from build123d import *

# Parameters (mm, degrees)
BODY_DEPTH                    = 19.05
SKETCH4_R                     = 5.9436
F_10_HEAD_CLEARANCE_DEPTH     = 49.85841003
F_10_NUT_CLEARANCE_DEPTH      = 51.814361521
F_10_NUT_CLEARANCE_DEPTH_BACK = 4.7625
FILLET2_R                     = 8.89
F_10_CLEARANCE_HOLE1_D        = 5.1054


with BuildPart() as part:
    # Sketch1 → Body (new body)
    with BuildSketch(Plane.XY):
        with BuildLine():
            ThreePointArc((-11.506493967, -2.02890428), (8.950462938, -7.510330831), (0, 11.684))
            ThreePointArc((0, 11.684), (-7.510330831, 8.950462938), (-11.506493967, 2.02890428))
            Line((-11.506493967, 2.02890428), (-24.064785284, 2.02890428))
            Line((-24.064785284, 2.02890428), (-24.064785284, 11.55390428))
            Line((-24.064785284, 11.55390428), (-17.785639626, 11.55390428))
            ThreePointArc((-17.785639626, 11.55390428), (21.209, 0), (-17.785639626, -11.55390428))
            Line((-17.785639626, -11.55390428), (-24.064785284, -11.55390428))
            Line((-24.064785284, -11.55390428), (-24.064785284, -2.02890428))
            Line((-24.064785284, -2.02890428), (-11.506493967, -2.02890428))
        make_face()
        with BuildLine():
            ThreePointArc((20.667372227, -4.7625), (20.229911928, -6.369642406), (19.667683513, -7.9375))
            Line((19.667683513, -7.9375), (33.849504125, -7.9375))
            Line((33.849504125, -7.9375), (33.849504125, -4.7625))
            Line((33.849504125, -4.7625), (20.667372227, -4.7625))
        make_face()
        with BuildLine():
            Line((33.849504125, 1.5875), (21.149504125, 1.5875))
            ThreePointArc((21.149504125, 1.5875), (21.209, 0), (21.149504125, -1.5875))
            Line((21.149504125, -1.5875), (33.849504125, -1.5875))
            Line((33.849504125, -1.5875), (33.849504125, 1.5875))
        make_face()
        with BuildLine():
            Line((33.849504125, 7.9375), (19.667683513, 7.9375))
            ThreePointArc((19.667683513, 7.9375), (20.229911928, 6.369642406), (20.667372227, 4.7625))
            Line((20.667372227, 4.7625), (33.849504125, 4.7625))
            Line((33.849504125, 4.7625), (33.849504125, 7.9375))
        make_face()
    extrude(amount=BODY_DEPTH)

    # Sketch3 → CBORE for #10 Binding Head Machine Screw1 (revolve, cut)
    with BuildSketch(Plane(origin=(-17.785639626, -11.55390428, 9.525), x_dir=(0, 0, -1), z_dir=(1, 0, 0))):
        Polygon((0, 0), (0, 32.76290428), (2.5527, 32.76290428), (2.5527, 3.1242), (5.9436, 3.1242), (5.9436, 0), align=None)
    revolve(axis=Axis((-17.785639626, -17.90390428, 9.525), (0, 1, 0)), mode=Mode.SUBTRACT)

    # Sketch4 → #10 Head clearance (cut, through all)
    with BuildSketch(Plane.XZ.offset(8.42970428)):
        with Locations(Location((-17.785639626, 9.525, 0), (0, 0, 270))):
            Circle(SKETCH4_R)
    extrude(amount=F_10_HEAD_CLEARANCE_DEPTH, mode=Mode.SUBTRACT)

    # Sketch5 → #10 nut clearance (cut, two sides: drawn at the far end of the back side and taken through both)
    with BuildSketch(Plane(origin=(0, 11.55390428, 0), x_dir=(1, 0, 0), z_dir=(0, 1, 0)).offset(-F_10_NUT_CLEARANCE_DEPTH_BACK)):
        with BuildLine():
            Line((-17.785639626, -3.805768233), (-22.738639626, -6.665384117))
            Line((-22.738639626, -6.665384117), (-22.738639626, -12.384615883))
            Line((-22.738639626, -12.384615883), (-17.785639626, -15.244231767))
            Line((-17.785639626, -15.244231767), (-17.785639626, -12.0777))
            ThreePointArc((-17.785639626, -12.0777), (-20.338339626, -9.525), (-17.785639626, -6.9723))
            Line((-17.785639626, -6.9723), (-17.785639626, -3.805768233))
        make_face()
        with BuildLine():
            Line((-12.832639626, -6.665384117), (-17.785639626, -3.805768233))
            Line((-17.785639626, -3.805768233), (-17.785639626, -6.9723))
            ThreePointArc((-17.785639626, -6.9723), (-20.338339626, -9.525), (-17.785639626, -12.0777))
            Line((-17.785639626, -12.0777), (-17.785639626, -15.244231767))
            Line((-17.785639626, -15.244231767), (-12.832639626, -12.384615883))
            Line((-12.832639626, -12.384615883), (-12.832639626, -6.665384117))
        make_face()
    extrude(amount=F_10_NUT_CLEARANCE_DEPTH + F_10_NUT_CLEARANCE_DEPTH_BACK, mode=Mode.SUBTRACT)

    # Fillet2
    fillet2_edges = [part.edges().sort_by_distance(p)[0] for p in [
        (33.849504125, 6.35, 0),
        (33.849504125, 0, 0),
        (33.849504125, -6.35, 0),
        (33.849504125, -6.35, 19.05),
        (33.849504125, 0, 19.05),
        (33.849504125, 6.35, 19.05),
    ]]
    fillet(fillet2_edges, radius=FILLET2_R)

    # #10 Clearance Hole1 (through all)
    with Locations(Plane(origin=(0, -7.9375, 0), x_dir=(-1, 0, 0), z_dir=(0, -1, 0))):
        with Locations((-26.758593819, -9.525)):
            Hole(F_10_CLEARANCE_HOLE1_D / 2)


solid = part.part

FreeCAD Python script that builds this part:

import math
import FreeCAD as App
import Part
import Sketcher
from FreeCAD import Vector
Q = App.Units.Quantity


def edges_at(feature, points):
    """Names of the edges that pass closest to the given points."""
    edges = feature.Shape.Edges
    near = lambda p: min(range(len(edges)), key=lambda i: edges[i].distToShape(Part.Vertex(*p))[0])
    return sorted({f"Edge{near(p) + 1}" for p in points})


def add_polygon(sketch, points):
    """Adds a closed chain of lines whose ends are joined by coincident constraints."""
    first, n = sketch.GeometryCount, len(points)
    for a, b in zip(points, points[1:] + points[:1]):
        sketch.addGeometry(Part.LineSegment(App.Vector(*a, 0), App.Vector(*b, 0)), False)
    for i in range(n):
        sketch.addConstraint(Sketcher.Constraint("Coincident", first + i, 2, first + (i + 1) % n, 1))

doc = App.newDocument("Part")
params = doc.addObject("Spreadsheet::Sheet", "Params")
for row, (alias, value) in enumerate([
    ("sketch1_radius", "0.46 in"),
    ("sketch1_width", "0.5 in"),
    ("sketch1_radius2", "0.835 in"),
    ("sketch1_height", "0.375 in"),
    ("sketch1_height2", "0.125 in"),
    ("pad1_length", "0.75 in"),
    ("sketch2_width", "0.123 in"),
    ("sketch2_height", "0.234 in"),
    ("groove_angle", "360 deg"),
    ("sketch3_diameter", "0.468 in"),
    ("pocket2_length", "51.814362 mm"),
    ("pocket2_length2", "0.1875 in"),
    ("fillet_radius", "0.35 in"),
    ("sketch5_diameter", "0.201 in"),
    ("hole_diameter", "0.201 in"),
], start=1):
    params.set(f"A{row}", alias)
    params.set(f"B{row}", "=" + value)
    params.setAlias(f"B{row}", alias)

body = doc.addObject("PartDesign::Body", "Body")

# Sketch on XY plane
sketch1 = doc.addObject("Sketcher::SketchObject", "Sketch")
body.addObject(sketch1)
sketch1.AttachmentSupport = (doc.XY_Plane, [""])
sketch1.MapMode = "FlatFace"
sketch1.addGeometry([
    Part.ArcOfCircle(Part.Circle(Vector(0, 0, 0), Vector(0, 0, 1), 11.684), math.radians(-170.000005), math.radians(170.000005)),  # 0
    Part.LineSegment(Vector(-11.506494, -2.028904, 0), Vector(-24.064785, -2.028904, 0)),  # 1
    Part.LineSegment(Vector(-24.064785, -2.028904, 0), Vector(-24.064785, -11.553904, 0)),  # 2
    Part.LineSegment(Vector(-24.064785, -11.553904, 0), Vector(-17.78564, -11.553904, 0)),  # 3
    Part.ArcOfCircle(Part.Circle(Vector(0, 0, 0), Vector(0, 0, 1), 21.209), math.radians(-146.991447), math.radians(-21.978058)),  # 4
    Part.LineSegment(Vector(19.667684, -7.9375, 0), Vector(33.849504, -7.9375, 0)),  # 5
    Part.LineSegment(Vector(33.849504, -7.9375, 0), Vector(33.849504, -4.7625, 0)),  # 6
    Part.LineSegment(Vector(33.849504, -4.7625, 0), Vector(20.667372, -4.7625, 0)),  # 7
    Part.ArcOfCircle(Part.Circle(Vector(0, 0, 0), Vector(0, 0, 1), 21.209), math.radians(-12.976471), math.radians(-4.292621)),  # 8
    Part.LineSegment(Vector(21.149504, -1.5875, 0), Vector(33.849504, -1.5875, 0)),  # 9
    Part.LineSegment(Vector(33.849504, -1.5875, 0), Vector(33.849504, 1.5875, 0)),  # 10
    Part.LineSegment(Vector(33.849504, 1.5875, 0), Vector(21.149504, 1.5875, 0)),  # 11
    Part.ArcOfCircle(Part.Circle(Vector(0, 0, 0), Vector(0, 0, 1), 21.209), math.radians(4.292621), math.radians(12.976471)),  # 12
    Part.LineSegment(Vector(20.667372, 4.7625, 0), Vector(33.849504, 4.7625, 0)),  # 13
    Part.LineSegment(Vector(33.849504, 4.7625, 0), Vector(33.849504, 7.9375, 0)),  # 14
    Part.LineSegment(Vector(33.849504, 7.9375, 0), Vector(19.667684, 7.9375, 0)),  # 15
    Part.ArcOfCircle(Part.Circle(Vector(0, 0, 0), Vector(0, 0, 1), 21.209), math.radians(21.978058), math.radians(146.991447)),  # 16
    Part.LineSegment(Vector(-17.78564, 11.553904, 0), Vector(-24.064785, 11.553904, 0)),  # 17
    Part.LineSegment(Vector(-24.064785, 11.553904, 0), Vector(-24.064785, 2.028904, 0)),  # 18
    Part.LineSegment(Vector(-24.064785, 2.028904, 0), Vector(-11.506494, 2.028904, 0)),  # 19
], False)
sketch1.addConstraint([
    Sketcher.Constraint("Coincident", 0, 1, 1, 1),
    Sketcher.Constraint("Coincident", 1, 2, 2, 1),
    Sketcher.Constraint("Coincident", 2, 2, 3, 1),
    Sketcher.Constraint("Coincident", 3, 2, 4, 1),
    Sketcher.Constraint("Coincident", 4, 2, 5, 1),
    Sketcher.Constraint("Coincident", 5, 2, 6, 1),
    Sketcher.Constraint("Coincident", 6, 2, 7, 1),
    Sketcher.Constraint("Coincident", 7, 2, 8, 1),
    Sketcher.Constraint("Coincident", 8, 2, 9, 1),
    Sketcher.Constraint("Coincident", 9, 2, 10, 1),
    Sketcher.Constraint("Coincident", 10, 2, 11, 1),
    Sketcher.Constraint("Coincident", 11, 2, 12, 1),
    Sketcher.Constraint("Coincident", 12, 2, 13, 1),
    Sketcher.Constraint("Coincident", 13, 2, 14, 1),
    Sketcher.Constraint("Coincident", 14, 2, 15, 1),
    Sketcher.Constraint("Coincident", 15, 2, 16, 1),
    Sketcher.Constraint("Coincident", 16, 2, 17, 1),
    Sketcher.Constraint("Coincident", 17, 2, 18, 1),
    Sketcher.Constraint("Coincident", 18, 2, 19, 1),
    Sketcher.Constraint("Coincident", 19, 2, 0, 2),
    Sketcher.Constraint("Horizontal", 1),
    Sketcher.Constraint("Vertical", 2),
    Sketcher.Constraint("Horizontal", 3),
    Sketcher.Constraint("Horizontal", 5),
    Sketcher.Constraint("Vertical", 6),
    Sketcher.Constraint("Horizontal", 7),
    Sketcher.Constraint("Horizontal", 9),
    Sketcher.Constraint("Vertical", 10),
    Sketcher.Constraint("Horizontal", 11),
    Sketcher.Constraint("Horizontal", 13),
    Sketcher.Constraint("Vertical", 14),
    Sketcher.Constraint("Horizontal", 15),
    Sketcher.Constraint("Horizontal", 17),
    Sketcher.Constraint("Vertical", 18),
    Sketcher.Constraint("Horizontal", 19),
    Sketcher.Constraint("Coincident", 0, 3, -1, 1),
    Sketcher.Constraint("Coincident", 4, 3, -1, 1),
    Sketcher.Constraint("Coincident", 8, 3, -1, 1),
    Sketcher.Constraint("Coincident", 12, 3, -1, 1),
    Sketcher.Constraint("Coincident", 16, 3, -1, 1),
    Sketcher.Constraint("Equal", 4, 8),
    Sketcher.Constraint("Equal", 8, 12),
    Sketcher.Constraint("Equal", 12, 16),
    Sketcher.Constraint("Symmetric", 6, 2, 13, 2, -1),
    Sketcher.Constraint("Symmetric", 2, 2, 17, 2, -1),
    Sketcher.Constraint("Vertical", 6, 2, 9, 2),
    Sketcher.Constraint("Vertical", 8, 2, 11, 2),
    Sketcher.Constraint("Vertical", 4, 2, 15, 2),
    Sketcher.Constraint("Vertical", 0, 1, 19, 2),
    Sketcher.Constraint("Equal", 6, 10),
    Sketcher.Constraint("Radius", 0, Q("0.46 in")),
    Sketcher.Constraint("DistanceX", 9, 1, 9, 2, Q("0.5 in")),
    Sketcher.Constraint("Radius", 4, Q("0.835 in")),
    Sketcher.Constraint("DistanceY", 4, 2, 12, 2, Q("0.5 in")),
    Sketcher.Constraint("DistanceY", 2, 2, 2, 1, Q("0.375 in")),
    Sketcher.Constraint("DistanceY", 6, 1, 6, 2, Q("0.125 in")),
    Sketcher.Constraint("DistanceX", 1, 2, 1, 1, 12.558291),
    Sketcher.Constraint("DistanceX", 3, 1, 3, 2, 6.279146),
])
sketch1.setExpression("Constraints[50]", "Params.sketch1_radius")
sketch1.setExpression("Constraints[51]", "Params.sketch1_width")
sketch1.setExpression("Constraints[52]", "Params.sketch1_radius2")
sketch1.setExpression("Constraints[54]", "Params.sketch1_height")
sketch1.setExpression("Constraints[55]", "Params.sketch1_height2")
pad1 = doc.addObject("PartDesign::Pad", "Pad")
body.addObject(pad1)
pad1.Profile = sketch1
pad1.setExpression("Length", "Params.pad1_length")

# Sketch on YZ plane
sketch2 = doc.addObject("Sketcher::SketchObject", "Sketch001")
body.addObject(sketch2)
sketch2.AttachmentSupport = (doc.YZ_Plane, [""])
sketch2.MapMode = "FlatFace"
sketch2.AttachmentOffset = App.Placement(Vector(0, 0, -17.78564), App.Rotation())
add_polygon(sketch2, [(21.209, 9.525), (-11.553904, 9.525), (-11.553904, 3.5814), (-8.429704, 3.5814), (-8.429704, 6.9723), (21.209, 6.9723)])  # lines 0-5
sketch2.addGeometry(Part.LineSegment(Vector(-11.553904, 9.525, 0), Vector(21.209, 9.525, 0)), True)  # axis
sketch2.addConstraint([
    Sketcher.Constraint("Horizontal", 0),
    Sketcher.Constraint("Vertical", 1),
    Sketcher.Constraint("Horizontal", 2),
    Sketcher.Constraint("Vertical", 3),
    Sketcher.Constraint("Horizontal", 4),
    Sketcher.Constraint("Vertical", 5),
    Sketcher.Constraint("Horizontal", 6),
    Sketcher.Constraint("Coincident", 6, 1, 0, 2),
    Sketcher.Constraint("Vertical", 4, 2, 6, 2),
    Sketcher.Constraint("DistanceX", 2, 1, 2, 2, Q("0.123 in")),
    Sketcher.Constraint("DistanceY", 1, 2, 1, 1, Q("0.234 in")),
    Sketcher.Constraint("DistanceY", 3, 1, 3, 2, Q("0.1335 in")),
    Sketcher.Constraint("DistanceY", -1, 1, 0, 2, Q("0.375 in")),
    Sketcher.Constraint("DistanceX", -1, 1, 4, 2, Q("0.835 in")),
    Sketcher.Constraint("DistanceX", 0, 2, 0, 1, 32.762904),
])
sketch2.setExpression("Constraints[15]", "Params.sketch2_width")
sketch2.setExpression("Constraints[16]", "Params.sketch2_height")
groove = doc.addObject("PartDesign::Groove", "Groove")
body.addObject(groove)
groove.Profile = sketch2
groove.ReferenceAxis = (sketch2, ["Axis0"])
groove.setExpression("Angle", "Params.groove_angle")

# Sketch on XZ plane
sketch3 = doc.addObject("Sketcher::SketchObject", "Sketch002")
body.addObject(sketch3)
sketch3.AttachmentSupport = (doc.XZ_Plane, [""])
sketch3.MapMode = "FlatFace"
sketch3.AttachmentOffset = App.Placement(Vector(0, 0, 8.429704), App.Rotation())
sketch3.addGeometry(Part.Circle(Vector(-17.78564, 9.525, 0), Vector(0, 0, 1), 5.9436), False)
sketch3.addConstraint([
    Sketcher.Constraint("Diameter", 0, Q("0.468 in")),
    Sketcher.Constraint("DistanceY", -1, 1, 0, 3, Q("0.375 in")),
    Sketcher.Constraint("DistanceX", 0, 3, -1, 1, 17.78564),
])
sketch3.setExpression("Constraints[0]", "Params.sketch3_diameter")
pocket1 = doc.addObject("PartDesign::Pocket", "Pocket")
body.addObject(pocket1)
pocket1.Profile = sketch3
pocket1.Type = "ThroughAll"
pocket1.Reversed = True

# Sketch on XZ plane
sketch4 = doc.addObject("Sketcher::SketchObject", "Sketch003")
body.addObject(sketch4)
sketch4.AttachmentSupport = (doc.XZ_Plane, [""])
sketch4.MapMode = "FlatFace"
sketch4.AttachmentOffset = App.Placement(Vector(0, 0, -11.553904), App.Rotation())
add_polygon(sketch4, [(-17.78564, 3.805768), (-22.73864, 6.665384), (-22.73864, 12.384616), (-17.78564, 15.244232), (-12.83264, 12.384616), (-12.83264, 6.665384)])  # lines 0-5
sketch4.addConstraint([
    Sketcher.Constraint("Vertical", 1),
    Sketcher.Constraint("Vertical", 4),
    Sketcher.Constraint("Parallel", 0, 3),
    Sketcher.Constraint("Parallel", 2, 5),
    Sketcher.Constraint("Horizontal", 1, 2, 3, 2),
    Sketcher.Constraint("Horizontal", 0, 2, 4, 2),
    Sketcher.Constraint("Vertical", 2, 2, 5, 2),
    Sketcher.Constraint("Angle", 0, Q("150 deg")),
    Sketcher.Constraint("DistanceX", 1, 2, 3, 2, Q("0.39 in")),
    Sketcher.Constraint("DistanceY", 1, 1, 1, 2, 5.719232),
    Sketcher.Constraint("DistanceX", 0, 2, -1, 1, 22.73864),
    Sketcher.Constraint("DistanceY", -1, 1, 2, 2, 15.244232),
])
pocket2 = doc.addObject("PartDesign::Pocket", "Pocket001")
body.addObject(pocket2)
pocket2.Profile = sketch4
pocket2.Type = "TwoLengths"
pocket2.setExpression("Length", "Params.pocket2_length")
pocket2.setExpression("Length2", "Params.pocket2_length2")
doc.recompute()

fillet = doc.addObject("PartDesign::Fillet", "Fillet")
body.addObject(fillet)
fillet.Base = (pocket2, edges_at(pocket2, [
    (33.85, 6.35, 0),
    (33.85, 0, 0),
    (33.85, -6.35, 0),
    (33.85, -6.35, 19.05),
    (33.85, 0, 19.05),
    (33.85, 6.35, 19.05),
]))
fillet.setExpression("Radius", "Params.fillet_radius")

# Sketch on XZ plane
sketch5 = doc.addObject("Sketcher::SketchObject", "Sketch004")
body.addObject(sketch5)
sketch5.AttachmentSupport = (doc.XZ_Plane, [""])
sketch5.MapMode = "FlatFace"
sketch5.AttachmentOffset = App.Placement(Vector(0, 0, 0.3125 * 25.4), App.Rotation())
sketch5.addGeometry(Part.Circle(Vector(26.758594, 9.525, 0), Vector(0, 0, 1), 2.5527), False)
sketch5.addConstraint([
    Sketcher.Constraint("Diameter", 0, Q("0.201 in")),
    Sketcher.Constraint("DistanceY", -1, 1, 0, 3, Q("0.375 in")),
    Sketcher.Constraint("DistanceX", -1, 1, 0, 3, 26.758594),
])
sketch5.setExpression("Constraints[0]", "Params.sketch5_diameter")
doc.recompute()
hole = doc.addObject("PartDesign::Hole", "Hole")
body.addObject(hole)
hole.Profile = sketch5
hole.ThreadType = "None"
hole.setExpression("Diameter", "Params.hole_diameter")
hole.DepthType = "ThroughAll"

doc.recompute()
